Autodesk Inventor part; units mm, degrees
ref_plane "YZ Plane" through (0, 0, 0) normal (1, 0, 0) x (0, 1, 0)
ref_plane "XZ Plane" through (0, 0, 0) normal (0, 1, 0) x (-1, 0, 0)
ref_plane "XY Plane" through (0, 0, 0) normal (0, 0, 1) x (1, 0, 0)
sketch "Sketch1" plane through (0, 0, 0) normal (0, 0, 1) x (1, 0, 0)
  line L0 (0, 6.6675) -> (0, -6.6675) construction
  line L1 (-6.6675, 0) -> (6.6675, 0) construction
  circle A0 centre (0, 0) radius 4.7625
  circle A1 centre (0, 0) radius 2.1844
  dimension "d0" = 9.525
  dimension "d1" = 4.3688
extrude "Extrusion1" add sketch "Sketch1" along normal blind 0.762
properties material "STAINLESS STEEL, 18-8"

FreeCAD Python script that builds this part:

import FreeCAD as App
import Part
import Sketcher

V = App.Vector
Q = App.Units.Quantity

doc = App.newDocument("Part")
body = doc.addObject("PartDesign::Body", "Body")

sketch1 = body.newObject("Sketcher::SketchObject", "Sketch")
sketch1.AttachmentSupport = (doc.getObject("XY_Plane"), [""])
sketch1.MapMode = "FlatFace"
sketch1.addGeometry(Part.Circle(V(0, 0, 0), V(0, 0, 1), 4.7625), False)
sketch1.addGeometry(Part.Circle(V(0, 0, 0), V(0, 0, 1), 2.1844), False)
sketch1.addConstraint(Sketcher.Constraint("Coincident", 0, 3, -1, 1))
sketch1.addConstraint(Sketcher.Constraint("Coincident", 1, 3, -1, 1))
sketch1.addConstraint(Sketcher.Constraint("Diameter", 0, Q("0.375 in")))
sketch1.addConstraint(Sketcher.Constraint("Diameter", 1, Q("0.172 in")))
pad1 = body.newObject("PartDesign::Pad", "Pad")
pad1.Profile = sketch1
pad1.Length = Q("0.03 in")

doc.recompute()
